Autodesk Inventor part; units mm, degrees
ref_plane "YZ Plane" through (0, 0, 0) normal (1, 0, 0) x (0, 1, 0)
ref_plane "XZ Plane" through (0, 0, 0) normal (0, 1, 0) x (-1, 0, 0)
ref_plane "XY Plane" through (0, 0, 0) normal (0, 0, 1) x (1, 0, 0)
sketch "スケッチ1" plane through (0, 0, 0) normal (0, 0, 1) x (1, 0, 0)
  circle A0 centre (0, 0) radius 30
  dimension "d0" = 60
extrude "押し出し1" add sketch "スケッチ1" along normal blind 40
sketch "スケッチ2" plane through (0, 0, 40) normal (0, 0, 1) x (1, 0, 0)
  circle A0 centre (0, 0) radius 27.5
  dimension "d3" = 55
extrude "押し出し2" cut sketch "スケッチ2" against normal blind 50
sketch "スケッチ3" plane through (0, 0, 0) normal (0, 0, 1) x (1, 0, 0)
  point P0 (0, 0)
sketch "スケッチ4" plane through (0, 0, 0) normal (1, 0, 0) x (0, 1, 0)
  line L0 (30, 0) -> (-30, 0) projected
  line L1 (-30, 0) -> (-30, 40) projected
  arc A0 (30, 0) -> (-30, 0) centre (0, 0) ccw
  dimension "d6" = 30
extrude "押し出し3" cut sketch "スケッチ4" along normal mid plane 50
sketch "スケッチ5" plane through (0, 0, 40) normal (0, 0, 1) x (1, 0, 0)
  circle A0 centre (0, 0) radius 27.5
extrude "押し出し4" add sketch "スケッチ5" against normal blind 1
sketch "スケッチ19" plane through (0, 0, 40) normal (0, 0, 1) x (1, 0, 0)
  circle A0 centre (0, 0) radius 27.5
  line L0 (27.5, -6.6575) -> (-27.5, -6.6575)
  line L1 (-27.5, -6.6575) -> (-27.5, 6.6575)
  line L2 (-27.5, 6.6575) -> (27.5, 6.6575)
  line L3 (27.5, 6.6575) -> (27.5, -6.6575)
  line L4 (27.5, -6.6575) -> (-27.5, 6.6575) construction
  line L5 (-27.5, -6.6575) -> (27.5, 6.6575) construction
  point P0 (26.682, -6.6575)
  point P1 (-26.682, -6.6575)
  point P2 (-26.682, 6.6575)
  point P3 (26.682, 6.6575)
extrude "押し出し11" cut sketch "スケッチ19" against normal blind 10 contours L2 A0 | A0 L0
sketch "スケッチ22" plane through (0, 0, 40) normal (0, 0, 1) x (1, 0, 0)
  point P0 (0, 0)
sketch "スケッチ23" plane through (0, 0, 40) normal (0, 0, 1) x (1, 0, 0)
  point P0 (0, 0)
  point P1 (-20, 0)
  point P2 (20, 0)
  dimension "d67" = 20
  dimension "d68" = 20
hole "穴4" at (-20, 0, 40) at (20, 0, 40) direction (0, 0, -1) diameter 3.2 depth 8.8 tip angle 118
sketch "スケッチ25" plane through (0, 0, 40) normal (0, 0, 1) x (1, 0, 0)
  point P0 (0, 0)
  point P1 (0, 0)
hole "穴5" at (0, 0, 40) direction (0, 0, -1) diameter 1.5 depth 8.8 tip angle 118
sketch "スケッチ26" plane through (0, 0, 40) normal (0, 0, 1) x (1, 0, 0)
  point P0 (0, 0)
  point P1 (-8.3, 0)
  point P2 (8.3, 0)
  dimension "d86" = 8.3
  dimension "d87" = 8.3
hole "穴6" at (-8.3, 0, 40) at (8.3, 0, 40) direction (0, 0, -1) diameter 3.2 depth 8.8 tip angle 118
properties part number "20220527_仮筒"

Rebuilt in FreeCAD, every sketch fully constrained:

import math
import FreeCAD as App
import Part
import Sketcher

doc = App.newDocument("Part")
params = doc.addObject("Spreadsheet::Sheet", "Params")
for row, (alias, value) in enumerate([
    ("sketch1_diameter", "60 mm"),
    ("pad1_length", "40 mm"),
    ("sketch2_diameter", "55 mm"),
    ("pocket1_length", "50 mm"),
    ("sketch3_radius", "30 mm"),
    ("pocket2_length", "50 mm"),
    ("sketch4_diameter", "55 mm"),
    ("pad2_length", "1 mm"),
    ("sketch5_radius", "27.5 mm"),
    ("pocket3_length", "10 mm"),
    ("sketch6_diameter", "3.2 mm"),
    ("hole_diameter", "3.2 mm"),
    ("hole_depth", "8.8 mm"),
    ("sketch7_diameter", "1.5 mm"),
    ("hole2_diameter", "1.5 mm"),
    ("hole2_depth", "8.8 mm"),
    ("sketch8_diameter", "3.2 mm"),
    ("hole3_diameter", "3.2 mm"),
    ("hole3_depth", "8.8 mm"),
], start=1):
    params.set(f"A{row}", alias)
    params.set(f"B{row}", "=" + value)
    params.setAlias(f"B{row}", alias)

body = doc.addObject("PartDesign::Body", "Body")

# Sketch on XY plane
sketch1 = doc.addObject("Sketcher::SketchObject", "Sketch")
body.addObject(sketch1)
sketch1.AttachmentSupport = (doc.XY_Plane, [""])
sketch1.MapMode = "FlatFace"
sketch1.addGeometry(Part.Circle(App.Vector(0, 0, 0), App.Vector(0, 0, 1), 30), False)
sketch1.addConstraint(Sketcher.Constraint("Coincident", 0, 3, -1, 1))
sketch1.addConstraint(Sketcher.Constraint("Diameter", 0, 60.0))
sketch1.setExpression("Constraints[1]", "Params.sketch1_diameter")
pad1 = doc.addObject("PartDesign::Pad", "Pad")
body.addObject(pad1)
pad1.Profile = sketch1
pad1.setExpression("Length", "Params.pad1_length")

# Sketch on XY plane
sketch2 = doc.addObject("Sketcher::SketchObject", "Sketch001")
body.addObject(sketch2)
sketch2.AttachmentSupport = (doc.XY_Plane, [""])
sketch2.MapMode = "FlatFace"
sketch2.AttachmentOffset = App.Placement(App.Vector(0, 0, 40), App.Rotation())
sketch2.addGeometry(Part.Circle(App.Vector(0, 0, 0), App.Vector(0, 0, 1), 28), False)
sketch2.addConstraint(Sketcher.Constraint("Coincident", 0, 3, -1, 1))
sketch2.addConstraint(Sketcher.Constraint("Diameter", 0, 55.0))
sketch2.setExpression("Constraints[1]", "Params.sketch2_diameter")
pocket1 = doc.addObject("PartDesign::Pocket", "Pocket")
body.addObject(pocket1)
pocket1.Profile = sketch2
pocket1.setExpression("Length", "Params.pocket1_length")

# Sketch on YZ plane
sketch3 = doc.addObject("Sketcher::SketchObject", "Sketch002")
body.addObject(sketch3)
sketch3.AttachmentSupport = (doc.YZ_Plane, [""])
sketch3.MapMode = "FlatFace"
sketch3.addGeometry(Part.LineSegment(App.Vector(-30, 0, 0), App.Vector(30, 0, 0)), False)
sketch3.addGeometry(Part.ArcOfCircle(Part.Circle(App.Vector(0, 0, 0), App.Vector(0, 0, 1), 30), math.radians(0), math.radians(180)), False)
sketch3.addConstraint(Sketcher.Constraint("Coincident", 0, 1, 1, 2))
sketch3.addConstraint(Sketcher.Constraint("Coincident", 1, 1, 0, 2))
sketch3.addConstraint(Sketcher.Constraint("Horizontal", 0))
sketch3.addConstraint(Sketcher.Constraint("Coincident", 1, 3, -1, 1))
sketch3.addConstraint(Sketcher.Constraint("PointOnObject", 0, 1, -1))
sketch3.addConstraint(Sketcher.Constraint("Radius", 1, 30.0))
sketch3.setExpression("Constraints[5]", "Params.sketch3_radius")
pocket2 = doc.addObject("PartDesign::Pocket", "Pocket001")
body.addObject(pocket2)
pocket2.Profile = sketch3
pocket2.setExpression("Length", "Params.pocket2_length")
pocket2.Midplane = True

# Sketch on XY plane
sketch4 = doc.addObject("Sketcher::SketchObject", "Sketch003")
body.addObject(sketch4)
sketch4.AttachmentSupport = (doc.XY_Plane, [""])
sketch4.MapMode = "FlatFace"
sketch4.AttachmentOffset = App.Placement(App.Vector(0, 0, 40), App.Rotation())
sketch4.addGeometry(Part.Circle(App.Vector(0, 0, 0), App.Vector(0, 0, 1), 28), False)
sketch4.addConstraint(Sketcher.Constraint("Coincident", 0, 3, -1, 1))
sketch4.addConstraint(Sketcher.Constraint("Diameter", 0, 55.0))
sketch4.setExpression("Constraints[1]", "Params.sketch4_diameter")
pad2 = doc.addObject("PartDesign::Pad", "Pad001")
body.addObject(pad2)
pad2.Profile = sketch4
pad2.setExpression("Length", "Params.pad2_length")
pad2.Reversed = True

# Sketch on XY plane
sketch5 = doc.addObject("Sketcher::SketchObject", "Sketch004")
body.addObject(sketch5)
sketch5.AttachmentSupport = (doc.XY_Plane, [""])
sketch5.MapMode = "FlatFace"
sketch5.AttachmentOffset = App.Placement(App.Vector(0, 0, 40), App.Rotation())
sketch5.addGeometry(Part.LineSegment(App.Vector(-27, 7, 0), App.Vector(27, 7, 0)), False)
sketch5.addGeometry(Part.ArcOfCircle(Part.Circle(App.Vector(0, 0, 0), App.Vector(0, 0, 1), 28), math.radians(14), math.radians(166)), False)
sketch5.addGeometry(Part.ArcOfCircle(Part.Circle(App.Vector(0, 0, 0), App.Vector(0, 0, 1), 28), math.radians(-166), math.radians(-14)), False)
sketch5.addGeometry(Part.LineSegment(App.Vector(27, -7, 0), App.Vector(-27, -7, 0)), False)
sketch5.addConstraint(Sketcher.Constraint("Coincident", 0, 1, 1, 2))
sketch5.addConstraint(Sketcher.Constraint("Coincident", 1, 1, 0, 2))
sketch5.addConstraint(Sketcher.Constraint("Coincident", 2, 1, 3, 2))
sketch5.addConstraint(Sketcher.Constraint("Coincident", 3, 1, 2, 2))
sketch5.addConstraint(Sketcher.Constraint("Horizontal", 0))
sketch5.addConstraint(Sketcher.Constraint("Horizontal", 3))
sketch5.addConstraint(Sketcher.Constraint("Coincident", 1, 3, -1, 1))
sketch5.addConstraint(Sketcher.Constraint("Coincident", 2, 3, -1, 1))
sketch5.addConstraint(Sketcher.Constraint("Equal", 1, 2))
sketch5.addConstraint(Sketcher.Constraint("Vertical", 0, 1, 2, 1))
sketch5.addConstraint(Sketcher.Constraint("Radius", 1, 27.5))
sketch5.addConstraint(Sketcher.Constraint("DistanceX", 0, 1, 0, 2, 53.364))
sketch5.setExpression("Constraints[10]", "Params.sketch5_radius")
pocket3 = doc.addObject("PartDesign::Pocket", "Pocket002")
body.addObject(pocket3)
pocket3.Profile = sketch5
pocket3.setExpression("Length", "Params.pocket3_length")

# Sketch on XY plane
sketch6 = doc.addObject("Sketcher::SketchObject", "Sketch005")
body.addObject(sketch6)
sketch6.AttachmentSupport = (doc.XY_Plane, [""])
sketch6.MapMode = "FlatFace"
sketch6.AttachmentOffset = App.Placement(App.Vector(0, 0, 40), App.Rotation())
sketch6.addGeometry(Part.Circle(App.Vector(-20, 0, 0), App.Vector(0, 0, 1), 1.6), False)
sketch6.addGeometry(Part.Circle(App.Vector(20, 0, 0), App.Vector(0, 0, 1), 1.6), False)
sketch6.addConstraint(Sketcher.Constraint("Equal", 0, 1))
sketch6.addConstraint(Sketcher.Constraint("Symmetric", 0, 3, 1, 3, -1, 1))
sketch6.addConstraint(Sketcher.Constraint("PointOnObject", 0, 3, -1))
sketch6.addConstraint(Sketcher.Constraint("Diameter", 0, 3.2))
sketch6.addConstraint(Sketcher.Constraint("DistanceX", 0, 3, -1, 1, 20.0))
sketch6.setExpression("Constraints[3]", "Params.sketch6_diameter")
doc.recompute()
hole = doc.addObject("PartDesign::Hole", "Hole")
body.addObject(hole)
hole.Profile = sketch6
hole.ThreadType = "None"
hole.setExpression("Diameter", "Params.hole_diameter")
hole.DepthType = "Dimension"
hole.setExpression("Depth", "Params.hole_depth")
hole.DrillPoint = "Angled"
hole.DrillPointAngle = 118

# Sketch on XY plane
sketch7 = doc.addObject("Sketcher::SketchObject", "Sketch006")
body.addObject(sketch7)
sketch7.AttachmentSupport = (doc.XY_Plane, [""])
sketch7.MapMode = "FlatFace"
sketch7.AttachmentOffset = App.Placement(App.Vector(0, 0, 40), App.Rotation())
sketch7.addGeometry(Part.Circle(App.Vector(0, 0, 0), App.Vector(0, 0, 1), 0.8), False)
sketch7.addConstraint(Sketcher.Constraint("Coincident", 0, 3, -1, 1))
sketch7.addConstraint(Sketcher.Constraint("Diameter", 0, 1.5))
sketch7.setExpression("Constraints[1]", "Params.sketch7_diameter")
doc.recompute()
hole2 = doc.addObject("PartDesign::Hole", "Hole001")
body.addObject(hole2)
hole2.Profile = sketch7
hole2.ThreadType = "None"
hole2.setExpression("Diameter", "Params.hole2_diameter")
hole2.DepthType = "Dimension"
hole2.setExpression("Depth", "Params.hole2_depth")
hole2.DrillPoint = "Angled"
hole2.DrillPointAngle = 118

# Sketch on XY plane
sketch8 = doc.addObject("Sketcher::SketchObject", "Sketch007")
body.addObject(sketch8)
sketch8.AttachmentSupport = (doc.XY_Plane, [""])
sketch8.MapMode = "FlatFace"
sketch8.AttachmentOffset = App.Placement(App.Vector(0, 0, 40), App.Rotation())
sketch8.addGeometry(Part.Circle(App.Vector(-8.3, 0, 0), App.Vector(0, 0, 1), 1.6), False)
sketch8.addGeometry(Part.Circle(App.Vector(8.3, 0, 0), App.Vector(0, 0, 1), 1.6), False)
sketch8.addConstraint(Sketcher.Constraint("Equal", 0, 1))
sketch8.addConstraint(Sketcher.Constraint("Symmetric", 0, 3, 1, 3, -1, 1))
sketch8.addConstraint(Sketcher.Constraint("PointOnObject", 0, 3, -1))
sketch8.addConstraint(Sketcher.Constraint("Diameter", 0, 3.2))
sketch8.addConstraint(Sketcher.Constraint("DistanceX", 0, 3, -1, 1, 8.3))
sketch8.setExpression("Constraints[3]", "Params.sketch8_diameter")
doc.recompute()
hole3 = doc.addObject("PartDesign::Hole", "Hole002")
body.addObject(hole3)
hole3.Profile = sketch8
hole3.ThreadType = "None"
hole3.setExpression("Diameter", "Params.hole3_diameter")
hole3.DepthType = "Dimension"
hole3.setExpression("Depth", "Params.hole3_depth")
hole3.DrillPoint = "Angled"
hole3.DrillPointAngle = 118

doc.recompute()
